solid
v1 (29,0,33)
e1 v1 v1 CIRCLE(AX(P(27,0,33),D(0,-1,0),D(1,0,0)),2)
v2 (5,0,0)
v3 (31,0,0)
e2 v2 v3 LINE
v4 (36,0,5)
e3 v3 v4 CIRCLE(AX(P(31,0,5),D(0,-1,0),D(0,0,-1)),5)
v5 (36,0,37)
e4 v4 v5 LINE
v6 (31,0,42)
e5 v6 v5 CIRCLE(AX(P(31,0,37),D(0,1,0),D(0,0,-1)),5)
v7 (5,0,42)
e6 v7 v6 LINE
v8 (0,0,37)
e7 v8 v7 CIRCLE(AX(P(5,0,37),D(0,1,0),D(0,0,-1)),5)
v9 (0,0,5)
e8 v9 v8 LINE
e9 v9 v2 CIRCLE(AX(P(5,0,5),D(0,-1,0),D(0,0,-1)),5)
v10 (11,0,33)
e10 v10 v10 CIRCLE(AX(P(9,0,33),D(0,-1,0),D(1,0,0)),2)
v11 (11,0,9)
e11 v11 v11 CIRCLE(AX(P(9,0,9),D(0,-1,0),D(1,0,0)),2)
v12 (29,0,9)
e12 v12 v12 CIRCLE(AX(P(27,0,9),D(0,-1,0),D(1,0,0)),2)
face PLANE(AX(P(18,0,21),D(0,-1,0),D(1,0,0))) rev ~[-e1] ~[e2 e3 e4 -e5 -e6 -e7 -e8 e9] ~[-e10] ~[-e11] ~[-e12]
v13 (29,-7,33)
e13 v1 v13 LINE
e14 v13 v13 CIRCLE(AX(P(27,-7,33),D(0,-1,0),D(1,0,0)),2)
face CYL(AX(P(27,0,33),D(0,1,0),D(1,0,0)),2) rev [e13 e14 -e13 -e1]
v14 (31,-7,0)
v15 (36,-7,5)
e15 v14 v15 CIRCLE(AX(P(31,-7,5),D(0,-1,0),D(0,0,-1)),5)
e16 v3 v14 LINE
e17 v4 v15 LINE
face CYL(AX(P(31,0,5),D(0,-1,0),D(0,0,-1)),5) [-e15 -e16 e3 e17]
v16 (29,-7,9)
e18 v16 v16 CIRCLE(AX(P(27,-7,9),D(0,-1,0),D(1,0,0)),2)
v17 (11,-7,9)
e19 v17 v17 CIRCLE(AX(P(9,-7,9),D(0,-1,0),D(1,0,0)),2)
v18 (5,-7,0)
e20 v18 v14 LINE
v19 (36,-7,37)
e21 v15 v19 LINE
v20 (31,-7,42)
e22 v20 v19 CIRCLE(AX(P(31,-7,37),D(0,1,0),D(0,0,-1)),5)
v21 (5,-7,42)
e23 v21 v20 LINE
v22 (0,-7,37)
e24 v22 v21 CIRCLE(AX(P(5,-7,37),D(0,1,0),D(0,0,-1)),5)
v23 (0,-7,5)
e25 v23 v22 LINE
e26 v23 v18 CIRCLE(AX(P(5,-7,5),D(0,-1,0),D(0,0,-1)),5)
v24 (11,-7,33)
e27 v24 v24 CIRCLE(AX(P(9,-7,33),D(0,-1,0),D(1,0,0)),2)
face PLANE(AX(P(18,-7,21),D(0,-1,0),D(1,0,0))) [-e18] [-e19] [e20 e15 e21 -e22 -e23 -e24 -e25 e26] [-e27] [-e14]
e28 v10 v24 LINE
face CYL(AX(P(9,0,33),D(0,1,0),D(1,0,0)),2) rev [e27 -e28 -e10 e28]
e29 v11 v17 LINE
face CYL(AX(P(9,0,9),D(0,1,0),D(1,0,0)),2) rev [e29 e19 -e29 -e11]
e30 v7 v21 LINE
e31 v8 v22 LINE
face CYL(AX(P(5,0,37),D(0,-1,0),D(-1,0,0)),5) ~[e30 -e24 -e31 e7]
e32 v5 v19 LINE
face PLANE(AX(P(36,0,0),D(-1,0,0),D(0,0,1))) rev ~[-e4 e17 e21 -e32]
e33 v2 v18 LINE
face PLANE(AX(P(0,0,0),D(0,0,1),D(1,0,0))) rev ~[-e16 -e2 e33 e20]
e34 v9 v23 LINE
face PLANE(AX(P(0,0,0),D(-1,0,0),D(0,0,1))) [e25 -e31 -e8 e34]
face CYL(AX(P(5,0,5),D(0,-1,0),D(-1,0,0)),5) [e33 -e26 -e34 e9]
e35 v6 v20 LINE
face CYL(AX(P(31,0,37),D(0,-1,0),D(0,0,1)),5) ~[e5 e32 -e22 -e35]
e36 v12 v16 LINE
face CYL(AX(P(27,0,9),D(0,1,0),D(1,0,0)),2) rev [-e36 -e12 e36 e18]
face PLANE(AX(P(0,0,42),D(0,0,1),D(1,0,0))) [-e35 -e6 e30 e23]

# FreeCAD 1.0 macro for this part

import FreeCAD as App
import Part
import Sketcher

V = App.Vector


def edges_at(feature, points):
    """Names of the edges that pass closest to the given points."""
    edges = feature.Shape.Edges
    near = lambda p: min(range(len(edges)), key=lambda i: edges[i].distToShape(Part.Vertex(*p))[0])
    return sorted({f"Edge{near(p) + 1}" for p in points})

doc = App.newDocument("Part")
body = doc.addObject("PartDesign::Body", "Body")

# Sketch on XZ plane
sketch1 = body.newObject("Sketcher::SketchObject", "Sketch")
sketch1.AttachmentSupport = (doc.getObject("XZ_Plane"), [""])
sketch1.MapMode = "FlatFace"
sketch1.addGeometry([
    Part.LineSegment(V(0, 42, 0), V(0, 0, 0)),  # 0
    Part.LineSegment(V(0, 0, 0), V(36, 0, 0)),  # 1
    Part.LineSegment(V(36, 0, 0), V(36, 42, 0)),  # 2
    Part.LineSegment(V(36, 42, 0), V(0, 42, 0)),  # 3
    Part.Circle(V(9, 9, 0), V(0, 0, 1), 2),  # 4
    Part.Circle(V(27, 9, 0), V(0, 0, 1), 2),  # 5
    Part.Circle(V(9, 33, 0), V(0, 0, 1), 2),  # 6
    Part.Circle(V(27, 33, 0), V(0, 0, 1), 2),  # 7
], False)
sketch1.addConstraint([
    Sketcher.Constraint("Coincident", 0, 2, 1, 1),
    Sketcher.Constraint("Coincident", 1, 2, 2, 1),
    Sketcher.Constraint("Coincident", 2, 2, 3, 1),
    Sketcher.Constraint("Coincident", 3, 2, 0, 1),
    Sketcher.Constraint("Vertical", 0),
    Sketcher.Constraint("Horizontal", 1),
    Sketcher.Constraint("Vertical", 2),
    Sketcher.Constraint("Horizontal", 3),
    Sketcher.Constraint("Coincident", 0, 2, -1, 1),
    Sketcher.Constraint("Equal", 4, 5),
    Sketcher.Constraint("Equal", 5, 6),
    Sketcher.Constraint("Equal", 6, 7),
    Sketcher.Constraint("Horizontal", 4, 3, 5, 3),
    Sketcher.Constraint("Horizontal", 6, 3, 7, 3),
    Sketcher.Constraint("Vertical", 4, 3, 6, 3),
    Sketcher.Constraint("Vertical", 5, 3, 7, 3),
    Sketcher.Constraint("Diameter", 4, 4.0),
    Sketcher.Constraint("DistanceX", 1, 1, 1, 2, 36.0),
    Sketcher.Constraint("DistanceY", 0, 2, 0, 1, 42.0),
    Sketcher.Constraint("DistanceX", -1, 1, 4, 3, 9.0),
    Sketcher.Constraint("DistanceY", -1, 1, 4, 3, 9.0),
    Sketcher.Constraint("DistanceX", -1, 1, 5, 3, 27.0),
    Sketcher.Constraint("DistanceY", -1, 1, 6, 3, 33.0),
])
pad1 = body.newObject("PartDesign::Pad", "Pad")
pad1.Profile = sketch1
pad1.Length = 7
doc.recompute()

fillet = body.newObject("PartDesign::Fillet", "Fillet")
fillet.Base = (pad1, edges_at(pad1, [
    (0, -3.5, 42),
    (0, -3.5, 0),
    (36, -3.5, 0),
    (36, -3.5, 42),
]))
fillet.Radius = 5

doc.recompute()
